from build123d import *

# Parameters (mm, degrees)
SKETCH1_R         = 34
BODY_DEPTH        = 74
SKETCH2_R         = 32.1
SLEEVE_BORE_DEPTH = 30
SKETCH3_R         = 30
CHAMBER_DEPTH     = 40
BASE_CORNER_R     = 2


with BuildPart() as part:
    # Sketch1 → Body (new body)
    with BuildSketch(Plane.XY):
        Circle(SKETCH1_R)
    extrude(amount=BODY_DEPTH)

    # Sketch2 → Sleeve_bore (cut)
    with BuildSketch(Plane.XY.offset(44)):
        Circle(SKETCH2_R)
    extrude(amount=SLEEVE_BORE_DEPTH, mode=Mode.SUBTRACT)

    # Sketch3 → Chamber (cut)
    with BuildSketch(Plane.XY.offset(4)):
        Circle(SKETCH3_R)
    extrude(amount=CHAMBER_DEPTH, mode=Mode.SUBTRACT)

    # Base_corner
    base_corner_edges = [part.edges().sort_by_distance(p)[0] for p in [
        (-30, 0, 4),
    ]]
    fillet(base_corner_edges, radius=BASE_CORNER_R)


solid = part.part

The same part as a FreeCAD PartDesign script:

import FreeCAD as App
import Part
import Sketcher
Q = App.Units.Quantity


def edges_at(feature, points):
    """Names of the edges that pass closest to the given points."""
    edges = feature.Shape.Edges
    near = lambda p: min(range(len(edges)), key=lambda i: edges[i].distToShape(Part.Vertex(*p))[0])
    return sorted({f"Edge{near(p) + 1}" for p in points})

doc = App.newDocument("Part")
body = doc.addObject("PartDesign::Body", "Body")

sketch1 = body.newObject("Sketcher::SketchObject", "Sketch")
sketch1.AttachmentSupport = (doc.getObject("XY_Plane"), [""])
sketch1.MapMode = "FlatFace"
sketch1.addGeometry(Part.Circle(App.Vector(0, 0, 0), App.Vector(0, 0, 1), 34), False)
sketch1.addConstraint([
    Sketcher.Constraint("Coincident", 0, 3, -1, 1),
    Sketcher.Constraint("Diameter", 0, Q("68 mm")),
])
pad1 = body.newObject("PartDesign::Pad", "Pad")
pad1.Profile = sketch1
pad1.Length = 74

sketch2 = body.newObject("Sketcher::SketchObject", "Sketch001")
sketch2.AttachmentSupport = (doc.getObject("XY_Plane"), [""])
sketch2.MapMode = "FlatFace"
sketch2.AttachmentOffset = App.Placement(App.Vector(0, 0, 44), App.Rotation())
sketch2.addGeometry(Part.Circle(App.Vector(0, 0, 0), App.Vector(0, 0, 1), 32), False)
sketch2.addConstraint([
    Sketcher.Constraint("Coincident", 0, 3, -1, 1),
    Sketcher.Constraint("Diameter", 0, Q("64.2 mm")),
])
pocket1 = body.newObject("PartDesign::Pocket", "Pocket")
pocket1.Profile = sketch2
pocket1.Length = 30
pocket1.Reversed = True

sketch3 = body.newObject("Sketcher::SketchObject", "Sketch002")
sketch3.AttachmentSupport = (doc.getObject("XY_Plane"), [""])
sketch3.MapMode = "FlatFace"
sketch3.AttachmentOffset = App.Placement(App.Vector(0, 0, 4), App.Rotation())
sketch3.addGeometry(Part.Circle(App.Vector(0, 0, 0), App.Vector(0, 0, 1), 30), False)
sketch3.addConstraint([
    Sketcher.Constraint("Coincident", 0, 3, -1, 1),
    Sketcher.Constraint("Diameter", 0, Q("60 mm")),
])
pocket2 = body.newObject("PartDesign::Pocket", "Pocket001")
pocket2.Profile = sketch3
pocket2.Length = 40
pocket2.Reversed = True
doc.recompute()

fillet = body.newObject("PartDesign::Fillet", "Fillet")
fillet.Base = (pocket2, edges_at(pocket2, [(-30, 0, 4)]))
fillet.Radius = 2

doc.recompute()
